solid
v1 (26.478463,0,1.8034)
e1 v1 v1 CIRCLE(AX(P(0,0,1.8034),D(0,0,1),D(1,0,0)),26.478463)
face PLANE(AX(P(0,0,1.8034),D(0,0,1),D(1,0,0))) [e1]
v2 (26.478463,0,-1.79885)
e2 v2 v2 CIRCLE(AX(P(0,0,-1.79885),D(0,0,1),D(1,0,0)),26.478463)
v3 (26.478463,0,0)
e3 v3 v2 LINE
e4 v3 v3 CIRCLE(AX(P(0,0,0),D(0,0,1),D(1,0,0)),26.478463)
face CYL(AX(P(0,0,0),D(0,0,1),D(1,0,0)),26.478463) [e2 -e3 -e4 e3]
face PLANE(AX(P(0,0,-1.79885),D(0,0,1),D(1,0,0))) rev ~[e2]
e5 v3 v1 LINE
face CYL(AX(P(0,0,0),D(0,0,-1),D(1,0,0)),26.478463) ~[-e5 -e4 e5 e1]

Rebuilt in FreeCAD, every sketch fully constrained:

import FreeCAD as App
import Part
import Sketcher

doc = App.newDocument("Part")
params = doc.addObject("Spreadsheet::Sheet", "Params")
for row, (alias, value) in enumerate([
    ("pad1_length", "1.79885 mm"),
    ("pad1_length2", "1.8034 mm"),
], start=1):
    params.set(f"A{row}", alias)
    params.set(f"B{row}", "=" + value)
    params.setAlias(f"B{row}", alias)

body = doc.addObject("PartDesign::Body", "Body")

sketch1 = doc.addObject("Sketcher::SketchObject", "Sketch")
body.addObject(sketch1)
sketch1.AttachmentSupport = (doc.XY_Plane, [""])
sketch1.MapMode = "FlatFace"
sketch1.addGeometry(Part.Circle(App.Vector(0, 0, 0), App.Vector(0, 0, 1), 26), False)
sketch1.addConstraint(Sketcher.Constraint("Coincident", 0, 3, -1, 1))
sketch1.addConstraint(Sketcher.Constraint("Diameter", 0, 52.956927))
pad1 = doc.addObject("PartDesign::Pad", "Pad")
body.addObject(pad1)
pad1.Profile = sketch1
pad1.Type = "TwoLengths"
pad1.setExpression("Length", "Params.pad1_length")
pad1.setExpression("Length2", "Params.pad1_length2")
pad1.Reversed = True

doc.recompute()
